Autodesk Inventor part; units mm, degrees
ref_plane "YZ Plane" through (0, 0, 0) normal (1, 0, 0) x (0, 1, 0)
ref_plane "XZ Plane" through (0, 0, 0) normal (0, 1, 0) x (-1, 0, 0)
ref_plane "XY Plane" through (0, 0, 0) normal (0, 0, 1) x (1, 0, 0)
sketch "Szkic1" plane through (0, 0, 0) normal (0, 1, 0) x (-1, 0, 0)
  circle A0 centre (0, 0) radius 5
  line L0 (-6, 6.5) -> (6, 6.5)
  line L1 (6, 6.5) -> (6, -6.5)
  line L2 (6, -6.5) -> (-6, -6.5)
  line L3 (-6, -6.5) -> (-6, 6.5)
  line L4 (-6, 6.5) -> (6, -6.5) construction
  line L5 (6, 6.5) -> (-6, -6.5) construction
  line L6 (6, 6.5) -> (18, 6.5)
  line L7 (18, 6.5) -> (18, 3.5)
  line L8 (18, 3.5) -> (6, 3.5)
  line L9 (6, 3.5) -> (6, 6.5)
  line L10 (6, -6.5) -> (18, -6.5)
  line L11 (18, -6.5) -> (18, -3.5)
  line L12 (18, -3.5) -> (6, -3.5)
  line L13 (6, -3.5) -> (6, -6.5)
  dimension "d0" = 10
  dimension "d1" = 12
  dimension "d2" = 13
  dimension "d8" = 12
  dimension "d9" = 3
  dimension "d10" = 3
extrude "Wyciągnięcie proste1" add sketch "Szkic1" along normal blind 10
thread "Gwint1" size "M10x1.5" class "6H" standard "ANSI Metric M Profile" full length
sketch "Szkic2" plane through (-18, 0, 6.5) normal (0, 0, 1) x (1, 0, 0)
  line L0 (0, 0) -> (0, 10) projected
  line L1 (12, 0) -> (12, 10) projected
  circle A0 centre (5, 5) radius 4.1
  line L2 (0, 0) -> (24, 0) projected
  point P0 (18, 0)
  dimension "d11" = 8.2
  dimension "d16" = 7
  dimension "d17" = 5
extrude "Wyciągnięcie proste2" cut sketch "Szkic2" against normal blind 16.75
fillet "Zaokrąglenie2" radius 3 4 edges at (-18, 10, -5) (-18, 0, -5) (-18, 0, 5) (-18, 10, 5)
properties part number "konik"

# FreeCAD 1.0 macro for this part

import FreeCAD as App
import Part
import Sketcher


def edges_at(feature, points):
    """Names of the edges that pass closest to the given points."""
    edges = feature.Shape.Edges
    near = lambda p: min(range(len(edges)), key=lambda i: edges[i].distToShape(Part.Vertex(*p))[0])
    return sorted({f"Edge{near(p) + 1}" for p in points})

doc = App.newDocument("Part")
params = doc.addObject("Spreadsheet::Sheet", "Params")
for row, (alias, value) in enumerate([
    ("sketch1_diameter", "10 mm"),
    ("sketch1_width", "12 mm"),
    ("sketch1_height", "13 mm"),
    ("sketch1_height2", "3 mm"),
    ("pad1_length", "10 mm"),
    ("sketch2_diameter", "8.2 mm"),
    ("pocket1_length", "16.75 mm"),
    ("fillet_radius", "3 mm"),
], start=1):
    params.set(f"A{row}", alias)
    params.set(f"B{row}", "=" + value)
    params.setAlias(f"B{row}", alias)

body = doc.addObject("PartDesign::Body", "Body")

sketch1 = doc.addObject("Sketcher::SketchObject", "Sketch")
body.addObject(sketch1)
sketch1.AttachmentSupport = (doc.XZ_Plane, [""])
sketch1.MapMode = "FlatFace"
sketch1.addGeometry([
    Part.LineSegment(App.Vector(6, 6.5, 0), App.Vector(6, -6.5, 0)),
    Part.LineSegment(App.Vector(6, -6.5, 0), App.Vector(-18, -6.5, 0)),
    Part.LineSegment(App.Vector(-18, -6.5, 0), App.Vector(-18, -3.5, 0)),
    Part.LineSegment(App.Vector(-18, -3.5, 0), App.Vector(-6, -3.5, 0)),
    Part.LineSegment(App.Vector(-6, -3.5, 0), App.Vector(-6, 3.5, 0)),
    Part.LineSegment(App.Vector(-6, 3.5, 0), App.Vector(-18, 3.5, 0)),
    Part.LineSegment(App.Vector(-18, 3.5, 0), App.Vector(-18, 6.5, 0)),
    Part.LineSegment(App.Vector(-18, 6.5, 0), App.Vector(6, 6.5, 0)),
    Part.Circle(App.Vector(0, 0, 0), App.Vector(0, 0, 1), 5),
], False)
sketch1.addConstraint([
    Sketcher.Constraint("Coincident", 0, 2, 1, 1),
    Sketcher.Constraint("Coincident", 1, 2, 2, 1),
    Sketcher.Constraint("Coincident", 2, 2, 3, 1),
    Sketcher.Constraint("Coincident", 3, 2, 4, 1),
    Sketcher.Constraint("Coincident", 4, 2, 5, 1),
    Sketcher.Constraint("Coincident", 5, 2, 6, 1),
    Sketcher.Constraint("Coincident", 6, 2, 7, 1),
    Sketcher.Constraint("Coincident", 7, 2, 0, 1),
    Sketcher.Constraint("Vertical", 0),
    Sketcher.Constraint("Horizontal", 1),
    Sketcher.Constraint("Vertical", 2),
    Sketcher.Constraint("Horizontal", 3),
    Sketcher.Constraint("Vertical", 4),
    Sketcher.Constraint("Horizontal", 5),
    Sketcher.Constraint("Vertical", 6),
    Sketcher.Constraint("Horizontal", 7),
    Sketcher.Constraint("Coincident", 8, 3, -1, 1),
    Sketcher.Constraint("Symmetric", 2, 2, 5, 2, -1),
    Sketcher.Constraint("Equal", 2, 6),
    Sketcher.Constraint("Diameter", 8, 10.0),
    Sketcher.Constraint("DistanceX", 3, 1, 3, 2, 12.0),
    Sketcher.Constraint("DistanceY", 0, 2, 0, 1, 13.0),
    Sketcher.Constraint("DistanceY", 2, 1, 2, 2, 3.0),
    Sketcher.Constraint("DistanceX", 3, 2, 0, 2, 12.0),
    Sketcher.Constraint("DistanceX", -1, 1, 0, 2, 6.0),
])
sketch1.setExpression("Constraints[19]", "Params.sketch1_diameter")
sketch1.setExpression("Constraints[20]", "Params.sketch1_width")
sketch1.setExpression("Constraints[21]", "Params.sketch1_height")
sketch1.setExpression("Constraints[22]", "Params.sketch1_height2")
pad1 = doc.addObject("PartDesign::Pad", "Pad")
body.addObject(pad1)
pad1.Profile = sketch1
pad1.setExpression("Length", "Params.pad1_length")
pad1.Reversed = True

sketch2 = doc.addObject("Sketcher::SketchObject", "Sketch001")
body.addObject(sketch2)
sketch2.AttachmentSupport = (doc.XY_Plane, [""])
sketch2.MapMode = "FlatFace"
sketch2.AttachmentOffset = App.Placement(App.Vector(0, 0, 6.5), App.Rotation())
sketch2.addGeometry(Part.Circle(App.Vector(-13, 5, 0), App.Vector(0, 0, 1), 4.1), False)
sketch2.addConstraint([
    Sketcher.Constraint("Diameter", 0, 8.2),
    Sketcher.Constraint("DistanceY", -1, 1, 0, 3, 5.0),
    Sketcher.Constraint("DistanceX", 0, 3, -1, 1, 13.0),
])
sketch2.setExpression("Constraints[0]", "Params.sketch2_diameter")
pocket1 = doc.addObject("PartDesign::Pocket", "Pocket")
body.addObject(pocket1)
pocket1.Profile = sketch2
pocket1.setExpression("Length", "Params.pocket1_length")
doc.recompute()

fillet = doc.addObject("PartDesign::Fillet", "Fillet")
body.addObject(fillet)
fillet.Base = (pocket1, edges_at(pocket1, [
    (-18, 10, -5),
    (-18, 0, -5),
    (-18, 0, 5),
    (-18, 10, 5),
]))
fillet.setExpression("Radius", "Params.fillet_radius")

doc.recompute()
